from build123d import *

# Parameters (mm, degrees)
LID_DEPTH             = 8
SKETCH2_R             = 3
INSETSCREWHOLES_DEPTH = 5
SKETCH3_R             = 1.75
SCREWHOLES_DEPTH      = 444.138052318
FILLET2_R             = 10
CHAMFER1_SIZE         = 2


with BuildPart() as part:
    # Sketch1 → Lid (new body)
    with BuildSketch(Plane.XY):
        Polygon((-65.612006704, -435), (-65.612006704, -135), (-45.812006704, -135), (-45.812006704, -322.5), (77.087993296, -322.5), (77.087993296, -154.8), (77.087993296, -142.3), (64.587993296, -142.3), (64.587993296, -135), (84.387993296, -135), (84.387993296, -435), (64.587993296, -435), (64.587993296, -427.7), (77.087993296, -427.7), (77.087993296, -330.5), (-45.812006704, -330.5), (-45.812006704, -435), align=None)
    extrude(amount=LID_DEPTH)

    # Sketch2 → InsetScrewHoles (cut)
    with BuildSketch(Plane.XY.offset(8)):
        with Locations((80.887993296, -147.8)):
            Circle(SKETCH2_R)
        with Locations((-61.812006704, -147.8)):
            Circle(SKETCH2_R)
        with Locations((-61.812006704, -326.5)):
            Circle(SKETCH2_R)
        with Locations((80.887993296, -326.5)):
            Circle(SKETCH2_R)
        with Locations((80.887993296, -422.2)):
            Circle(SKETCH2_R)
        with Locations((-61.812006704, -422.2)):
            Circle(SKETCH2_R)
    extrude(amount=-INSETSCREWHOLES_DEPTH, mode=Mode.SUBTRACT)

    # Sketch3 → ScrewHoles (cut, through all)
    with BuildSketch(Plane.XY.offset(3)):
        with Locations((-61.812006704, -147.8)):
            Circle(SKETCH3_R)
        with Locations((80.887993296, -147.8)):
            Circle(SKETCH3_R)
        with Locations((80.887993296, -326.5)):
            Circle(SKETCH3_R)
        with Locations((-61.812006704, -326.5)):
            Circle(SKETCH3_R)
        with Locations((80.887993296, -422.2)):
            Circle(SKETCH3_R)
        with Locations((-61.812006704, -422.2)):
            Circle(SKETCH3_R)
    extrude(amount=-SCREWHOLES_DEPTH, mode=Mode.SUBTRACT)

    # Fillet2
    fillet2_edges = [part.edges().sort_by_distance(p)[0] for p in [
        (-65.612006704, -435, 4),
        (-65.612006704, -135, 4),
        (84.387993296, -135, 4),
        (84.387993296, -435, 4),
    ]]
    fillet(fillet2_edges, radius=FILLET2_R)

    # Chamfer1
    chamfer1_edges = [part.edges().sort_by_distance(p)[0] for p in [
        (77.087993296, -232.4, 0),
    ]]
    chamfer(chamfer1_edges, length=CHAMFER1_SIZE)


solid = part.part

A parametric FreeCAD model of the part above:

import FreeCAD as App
import Part
import Sketcher
from FreeCAD import Vector


def edges_at(feature, points):
    """Names of the edges that pass closest to the given points."""
    edges = feature.Shape.Edges
    near = lambda p: min(range(len(edges)), key=lambda i: edges[i].distToShape(Part.Vertex(*p))[0])
    return sorted({f"Edge{near(p) + 1}" for p in points})

doc = App.newDocument("Part")
params = doc.addObject("Spreadsheet::Sheet", "Params")
for row, (alias, value) in enumerate([
    ("sketch1_height", "300 mm"),
    ("sketch1_width", "19.8 mm"),
    ("sketch1_width2", "122.9 mm"),
    ("sketch1_width3", "12.5 mm"),
    ("sketch1_height2", "104.5 mm"),
    ("pad1_length", "8 mm"),
    ("sketch2_diameter", "6 mm"),
    ("pocket1_length", "5 mm"),
    ("sketch3_diameter", "3.5 mm"),
    ("fillet_radius", "10 mm"),
    ("chamfer_size", "2 mm"),
], start=1):
    params.set(f"A{row}", alias)
    params.set(f"B{row}", "=" + value)
    params.setAlias(f"B{row}", alias)

body = doc.addObject("PartDesign::Body", "Body")

# Sketch on XY plane
sketch1 = body.newObject("Sketcher::SketchObject", "Sketch")
sketch1.AttachmentSupport = (doc.getObject("XY_Plane"), [""])
sketch1.MapMode = "FlatFace"
sketch1.addGeometry(Part.LineSegment(Vector(-65.612007, -135, 0), Vector(-65.612007, -435, 0)), False)
sketch1.addGeometry(Part.LineSegment(Vector(-65.612007, -435, 0), Vector(-45.812007, -435, 0)), False)
sketch1.addGeometry(Part.LineSegment(Vector(-45.812007, -435, 0), Vector(-45.812007, -330.5, 0)), False)
sketch1.addGeometry(Part.LineSegment(Vector(-45.812007, -330.5, 0), Vector(77.087993, -330.5, 0)), False)
sketch1.addGeometry(Part.LineSegment(Vector(77.087993, -330.5, 0), Vector(77.087993, -427.7, 0)), False)
sketch1.addGeometry(Part.LineSegment(Vector(77.087993, -427.7, 0), Vector(64.587993, -427.7, 0)), False)
sketch1.addGeometry(Part.LineSegment(Vector(64.587993, -427.7, 0), Vector(64.587993, -435, 0)), False)
sketch1.addGeometry(Part.LineSegment(Vector(64.587993, -435, 0), Vector(84.387993, -435, 0)), False)
sketch1.addGeometry(Part.LineSegment(Vector(84.387993, -435, 0), Vector(84.387993, -135, 0)), False)
sketch1.addGeometry(Part.LineSegment(Vector(84.387993, -135, 0), Vector(64.587993, -135, 0)), False)
sketch1.addGeometry(Part.LineSegment(Vector(64.587993, -135, 0), Vector(64.587993, -142.3, 0)), False)
sketch1.addGeometry(Part.LineSegment(Vector(64.587993, -142.3, 0), Vector(77.087993, -142.3, 0)), False)
sketch1.addGeometry(Part.LineSegment(Vector(77.087993, -142.3, 0), Vector(77.087993, -322.5, 0)), False)
sketch1.addGeometry(Part.LineSegment(Vector(77.087993, -322.5, 0), Vector(-45.812007, -322.5, 0)), False)
sketch1.addGeometry(Part.LineSegment(Vector(-45.812007, -322.5, 0), Vector(-45.812007, -135, 0)), False)
sketch1.addGeometry(Part.LineSegment(Vector(-45.812007, -135, 0), Vector(-65.612007, -135, 0)), False)
sketch1.addConstraint(Sketcher.Constraint("Coincident", 0, 2, 1, 1))
sketch1.addConstraint(Sketcher.Constraint("Coincident", 1, 2, 2, 1))
sketch1.addConstraint(Sketcher.Constraint("Coincident", 2, 2, 3, 1))
sketch1.addConstraint(Sketcher.Constraint("Coincident", 3, 2, 4, 1))
sketch1.addConstraint(Sketcher.Constraint("Coincident", 4, 2, 5, 1))
sketch1.addConstraint(Sketcher.Constraint("Coincident", 5, 2, 6, 1))
sketch1.addConstraint(Sketcher.Constraint("Coincident", 6, 2, 7, 1))
sketch1.addConstraint(Sketcher.Constraint("Coincident", 7, 2, 8, 1))
sketch1.addConstraint(Sketcher.Constraint("Coincident", 8, 2, 9, 1))
sketch1.addConstraint(Sketcher.Constraint("Coincident", 9, 2, 10, 1))
sketch1.addConstraint(Sketcher.Constraint("Coincident", 10, 2, 11, 1))
sketch1.addConstraint(Sketcher.Constraint("Coincident", 11, 2, 12, 1))
sketch1.addConstraint(Sketcher.Constraint("Coincident", 12, 2, 13, 1))
sketch1.addConstraint(Sketcher.Constraint("Coincident", 13, 2, 14, 1))
sketch1.addConstraint(Sketcher.Constraint("Coincident", 14, 2, 15, 1))
sketch1.addConstraint(Sketcher.Constraint("Coincident", 15, 2, 0, 1))
sketch1.addConstraint(Sketcher.Constraint("Vertical", 0))
sketch1.addConstraint(Sketcher.Constraint("Horizontal", 1))
sketch1.addConstraint(Sketcher.Constraint("Vertical", 2))
sketch1.addConstraint(Sketcher.Constraint("Horizontal", 3))
sketch1.addConstraint(Sketcher.Constraint("Vertical", 4))
sketch1.addConstraint(Sketcher.Constraint("Horizontal", 5))
sketch1.addConstraint(Sketcher.Constraint("Vertical", 6))
sketch1.addConstraint(Sketcher.Constraint("Horizontal", 7))
sketch1.addConstraint(Sketcher.Constraint("Vertical", 8))
sketch1.addConstraint(Sketcher.Constraint("Horizontal", 9))
sketch1.addConstraint(Sketcher.Constraint("Vertical", 10))
sketch1.addConstraint(Sketcher.Constraint("Horizontal", 11))
sketch1.addConstraint(Sketcher.Constraint("Vertical", 12))
sketch1.addConstraint(Sketcher.Constraint("Horizontal", 13))
sketch1.addConstraint(Sketcher.Constraint("Vertical", 14))
sketch1.addConstraint(Sketcher.Constraint("Horizontal", 15))
sketch1.addConstraint(Sketcher.Constraint("Horizontal", 1, 2, 6, 2))
sketch1.addConstraint(Sketcher.Constraint("Horizontal", 9, 2, 14, 2))
sketch1.addConstraint(Sketcher.Constraint("Vertical", 6, 2, 9, 2))
sketch1.addConstraint(Sketcher.Constraint("Vertical", 4, 2, 11, 2))
sketch1.addConstraint(Sketcher.Constraint("Vertical", 2, 2, 13, 2))
sketch1.addConstraint(Sketcher.Constraint("Equal", 1, 7))
sketch1.addConstraint(Sketcher.Constraint("Equal", 6, 10))
sketch1.addConstraint(Sketcher.Constraint("DistanceY", 0, 2, 0, 1, 300.0))
sketch1.addConstraint(Sketcher.Constraint("DistanceX", 1, 1, 1, 2, 19.8))
sketch1.addConstraint(Sketcher.Constraint("DistanceX", 3, 1, 3, 2, 122.9))
sketch1.addConstraint(Sketcher.Constraint("DistanceX", 5, 2, 5, 1, 12.5))
sketch1.addConstraint(Sketcher.Constraint("DistanceY", 2, 1, 2, 2, 104.5))
sketch1.addConstraint(Sketcher.Constraint("DistanceY", 4, 2, 4, 1, 97.2))
sketch1.addConstraint(Sketcher.Constraint("DistanceY", 12, 2, 12, 1, 180.2))
sketch1.addConstraint(Sketcher.Constraint("DistanceY", 0, 2, -1, 1, 435.0))
sketch1.addConstraint(Sketcher.Constraint("DistanceX", 0, 2, -1, 1, 65.612007))
sketch1.setExpression("Constraints[39]", "Params.sketch1_height")
sketch1.setExpression("Constraints[40]", "Params.sketch1_width")
sketch1.setExpression("Constraints[41]", "Params.sketch1_width2")
sketch1.setExpression("Constraints[42]", "Params.sketch1_width3")
sketch1.setExpression("Constraints[43]", "Params.sketch1_height2")
pad1 = body.newObject("PartDesign::Pad", "Pad")
pad1.Profile = sketch1
pad1.setExpression("Length", "Params.pad1_length")

# Sketch on XY plane
sketch2 = body.newObject("Sketcher::SketchObject", "Sketch001")
sketch2.AttachmentSupport = (doc.getObject("XY_Plane"), [""])
sketch2.MapMode = "FlatFace"
sketch2.AttachmentOffset = App.Placement(Vector(0, 0, 8), App.Rotation())
sketch2.addGeometry(Part.Circle(Vector(80.887993, -147.8, 0), Vector(0, 0, 1), 3), False)
sketch2.addGeometry(Part.Circle(Vector(-61.812007, -147.8, 0), Vector(0, 0, 1), 3), False)
sketch2.addGeometry(Part.Circle(Vector(-61.812007, -326.5, 0), Vector(0, 0, 1), 3), False)
sketch2.addGeometry(Part.Circle(Vector(80.887993, -326.5, 0), Vector(0, 0, 1), 3), False)
sketch2.addGeometry(Part.Circle(Vector(80.887993, -422.2, 0), Vector(0, 0, 1), 3), False)
sketch2.addGeometry(Part.Circle(Vector(-61.812007, -422.2, 0), Vector(0, 0, 1), 3), False)
sketch2.addConstraint(Sketcher.Constraint("Equal", 0, 1))
sketch2.addConstraint(Sketcher.Constraint("Equal", 1, 2))
sketch2.addConstraint(Sketcher.Constraint("Equal", 2, 3))
sketch2.addConstraint(Sketcher.Constraint("Equal", 3, 4))
sketch2.addConstraint(Sketcher.Constraint("Equal", 4, 5))
sketch2.addConstraint(Sketcher.Constraint("Horizontal", 0, 3, 1, 3))
sketch2.addConstraint(Sketcher.Constraint("Horizontal", 2, 3, 3, 3))
sketch2.addConstraint(Sketcher.Constraint("Horizontal", 4, 3, 5, 3))
sketch2.addConstraint(Sketcher.Constraint("Vertical", 1, 3, 2, 3))
sketch2.addConstraint(Sketcher.Constraint("Vertical", 0, 3, 3, 3))
sketch2.addConstraint(Sketcher.Constraint("Vertical", 3, 3, 4, 3))
sketch2.addConstraint(Sketcher.Constraint("Vertical", 2, 3, 5, 3))
sketch2.addConstraint(Sketcher.Constraint("Diameter", 0, 6.0))
sketch2.addConstraint(Sketcher.Constraint("DistanceY", 0, 3, -1, 1, 147.8))
sketch2.addConstraint(Sketcher.Constraint("DistanceY", 2, 3, -1, 1, 326.5))
sketch2.addConstraint(Sketcher.Constraint("DistanceY", 4, 3, -1, 1, 422.2))
sketch2.addConstraint(Sketcher.Constraint("DistanceX", 1, 3, 0, 3, 142.7))
sketch2.addConstraint(Sketcher.Constraint("DistanceX", -1, 1, 0, 3, 80.887993))
sketch2.setExpression("Constraints[12]", "Params.sketch2_diameter")
pocket1 = body.newObject("PartDesign::Pocket", "Pocket")
pocket1.Profile = sketch2
pocket1.setExpression("Length", "Params.pocket1_length")

# Sketch on XY plane
sketch3 = body.newObject("Sketcher::SketchObject", "Sketch002")
sketch3.AttachmentSupport = (doc.getObject("XY_Plane"), [""])
sketch3.MapMode = "FlatFace"
sketch3.AttachmentOffset = App.Placement(Vector(0, 0, 3), App.Rotation())
sketch3.addGeometry(Part.Circle(Vector(-61.812007, -147.8, 0), Vector(0, 0, 1), 1.75), False)
sketch3.addGeometry(Part.Circle(Vector(80.887993, -147.8, 0), Vector(0, 0, 1), 1.75), False)
sketch3.addGeometry(Part.Circle(Vector(80.887993, -326.5, 0), Vector(0, 0, 1), 1.75), False)
sketch3.addGeometry(Part.Circle(Vector(-61.812007, -326.5, 0), Vector(0, 0, 1), 1.75), False)
sketch3.addGeometry(Part.Circle(Vector(80.887993, -422.2, 0), Vector(0, 0, 1), 1.75), False)
sketch3.addGeometry(Part.Circle(Vector(-61.812007, -422.2, 0), Vector(0, 0, 1), 1.75), False)
sketch3.addConstraint(Sketcher.Constraint("Equal", 0, 1))
sketch3.addConstraint(Sketcher.Constraint("Equal", 1, 2))
sketch3.addConstraint(Sketcher.Constraint("Equal", 2, 3))
sketch3.addConstraint(Sketcher.Constraint("Equal", 3, 4))
sketch3.addConstraint(Sketcher.Constraint("Equal", 4, 5))
sketch3.addConstraint(Sketcher.Constraint("Horizontal", 0, 3, 1, 3))
sketch3.addConstraint(Sketcher.Constraint("Horizontal", 2, 3, 3, 3))
sketch3.addConstraint(Sketcher.Constraint("Horizontal", 4, 3, 5, 3))
sketch3.addConstraint(Sketcher.Constraint("Vertical", 1, 3, 2, 3))
sketch3.addConstraint(Sketcher.Constraint("Vertical", 0, 3, 3, 3))
sketch3.addConstraint(Sketcher.Constraint("Vertical", 2, 3, 4, 3))
sketch3.addConstraint(Sketcher.Constraint("Vertical", 3, 3, 5, 3))
sketch3.addConstraint(Sketcher.Constraint("Diameter", 0, 3.5))
sketch3.addConstraint(Sketcher.Constraint("DistanceY", 0, 3, -1, 1, 147.8))
sketch3.addConstraint(Sketcher.Constraint("DistanceY", 2, 3, -1, 1, 326.5))
sketch3.addConstraint(Sketcher.Constraint("DistanceY", 4, 3, -1, 1, 422.2))
sketch3.addConstraint(Sketcher.Constraint("DistanceX", 0, 3, 1, 3, 142.7))
sketch3.addConstraint(Sketcher.Constraint("DistanceX", 0, 3, -1, 1, 61.812007))
sketch3.setExpression("Constraints[12]", "Params.sketch3_diameter")
pocket2 = body.newObject("PartDesign::Pocket", "Pocket001")
pocket2.Profile = sketch3
pocket2.Type = "ThroughAll"
doc.recompute()

fillet = body.newObject("PartDesign::Fillet", "Fillet")
fillet.Base = (pocket2, edges_at(pocket2, [
    (-65.612, -435, 4),
    (-65.612, -135, 4),
    (84.388, -135, 4),
    (84.388, -435, 4),
]))
fillet.setExpression("Radius", "Params.fillet_radius")
doc.recompute()

chamfer = body.newObject("PartDesign::Chamfer", "Chamfer")
chamfer.Base = (fillet, edges_at(fillet, [(77.088, -232.4, 0)]))
chamfer.setExpression("Size", "Params.chamfer_size")

doc.recompute()
